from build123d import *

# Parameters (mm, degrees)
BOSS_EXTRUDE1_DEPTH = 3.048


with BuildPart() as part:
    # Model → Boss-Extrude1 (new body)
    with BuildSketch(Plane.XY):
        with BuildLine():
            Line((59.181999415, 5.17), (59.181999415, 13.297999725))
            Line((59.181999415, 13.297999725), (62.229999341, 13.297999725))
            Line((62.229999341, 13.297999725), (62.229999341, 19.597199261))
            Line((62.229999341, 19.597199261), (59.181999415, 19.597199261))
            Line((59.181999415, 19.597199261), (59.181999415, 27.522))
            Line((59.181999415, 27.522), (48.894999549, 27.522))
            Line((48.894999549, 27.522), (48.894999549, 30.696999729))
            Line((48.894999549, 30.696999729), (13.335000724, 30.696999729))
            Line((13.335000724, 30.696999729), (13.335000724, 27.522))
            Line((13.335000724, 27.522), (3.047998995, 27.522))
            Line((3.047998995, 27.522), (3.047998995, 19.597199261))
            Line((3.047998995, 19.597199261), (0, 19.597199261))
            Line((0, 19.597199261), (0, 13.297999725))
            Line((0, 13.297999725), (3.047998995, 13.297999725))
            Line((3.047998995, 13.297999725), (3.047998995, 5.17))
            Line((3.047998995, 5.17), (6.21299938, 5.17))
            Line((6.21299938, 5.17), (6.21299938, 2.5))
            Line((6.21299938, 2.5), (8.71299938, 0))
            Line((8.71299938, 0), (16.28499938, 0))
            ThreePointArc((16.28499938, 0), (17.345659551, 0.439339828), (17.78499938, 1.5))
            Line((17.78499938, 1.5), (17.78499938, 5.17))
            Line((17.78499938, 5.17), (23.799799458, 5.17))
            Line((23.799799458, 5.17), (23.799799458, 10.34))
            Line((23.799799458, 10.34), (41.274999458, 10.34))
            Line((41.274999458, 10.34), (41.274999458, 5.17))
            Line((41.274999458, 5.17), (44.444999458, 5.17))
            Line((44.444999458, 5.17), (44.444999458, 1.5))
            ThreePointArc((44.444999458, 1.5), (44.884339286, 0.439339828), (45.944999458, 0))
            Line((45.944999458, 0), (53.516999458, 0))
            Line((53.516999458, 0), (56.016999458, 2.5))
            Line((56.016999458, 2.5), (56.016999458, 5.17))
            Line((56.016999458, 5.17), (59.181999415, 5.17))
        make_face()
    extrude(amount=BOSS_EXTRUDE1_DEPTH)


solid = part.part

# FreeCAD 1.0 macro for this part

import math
import FreeCAD as App
import Part
import Sketcher

V = App.Vector
Q = App.Units.Quantity

doc = App.newDocument("Part")
body = doc.addObject("PartDesign::Body", "Body")

# Sketch on XY plane
sketch1 = doc.addObject("Sketcher::SketchObject", "Sketch")
body.addObject(sketch1)
sketch1.AttachmentSupport = (doc.XY_Plane, [""])
sketch1.MapMode = "FlatFace"
sketch1.addGeometry(Part.LineSegment(V(59.181999, 5.17, 0), V(59.181999, 13.298, 0)), False)
sketch1.addGeometry(Part.LineSegment(V(59.181999, 13.298, 0), V(62.229999, 13.298, 0)), False)
sketch1.addGeometry(Part.LineSegment(V(62.229999, 13.298, 0), V(62.229999, 19.597199, 0)), False)
sketch1.addGeometry(Part.LineSegment(V(62.229999, 19.597199, 0), V(59.181999, 19.597199, 0)), False)
sketch1.addGeometry(Part.LineSegment(V(59.181999, 19.597199, 0), V(59.181999, 27.522, 0)), False)
sketch1.addGeometry(Part.LineSegment(V(59.181999, 27.522, 0), V(48.895, 27.522, 0)), False)
sketch1.addGeometry(Part.LineSegment(V(48.895, 27.522, 0), V(48.895, 30.697, 0)), False)
sketch1.addGeometry(Part.LineSegment(V(48.895, 30.697, 0), V(13.335001, 30.697, 0)), False)
sketch1.addGeometry(Part.LineSegment(V(13.335001, 30.697, 0), V(13.335001, 27.522, 0)), False)
sketch1.addGeometry(Part.LineSegment(V(13.335001, 27.522, 0), V(3.047999, 27.522, 0)), False)
sketch1.addGeometry(Part.LineSegment(V(3.047999, 27.522, 0), V(3.047999, 19.597199, 0)), False)
sketch1.addGeometry(Part.LineSegment(V(3.047999, 19.597199, 0), V(0, 19.597199, 0)), False)
sketch1.addGeometry(Part.LineSegment(V(0, 19.597199, 0), V(0, 13.298, 0)), False)
sketch1.addGeometry(Part.LineSegment(V(0, 13.298, 0), V(3.047999, 13.298, 0)), False)
sketch1.addGeometry(Part.LineSegment(V(3.047999, 13.298, 0), V(3.047999, 5.17, 0)), False)
sketch1.addGeometry(Part.LineSegment(V(3.047999, 5.17, 0), V(6.212999, 5.17, 0)), False)
sketch1.addGeometry(Part.LineSegment(V(6.212999, 5.17, 0), V(6.212999, 2.5, 0)), False)
sketch1.addGeometry(Part.LineSegment(V(6.212999, 2.5, 0), V(8.712999, 0, 0)), False)
sketch1.addGeometry(Part.LineSegment(V(8.712999, 0, 0), V(16.284999, 0, 0)), False)
sketch1.addGeometry(Part.ArcOfCircle(Part.Circle(V(16.284999, 1.5, 0), V(0, 0, 1), 1.5), math.radians(-90), math.radians(0)), False)
sketch1.addGeometry(Part.LineSegment(V(17.784999, 1.5, 0), V(17.784999, 5.17, 0)), False)
sketch1.addGeometry(Part.LineSegment(V(17.784999, 5.17, 0), V(23.799799, 5.17, 0)), False)
sketch1.addGeometry(Part.LineSegment(V(23.799799, 5.17, 0), V(23.799799, 10.34, 0)), False)
sketch1.addGeometry(Part.LineSegment(V(23.799799, 10.34, 0), V(41.274999, 10.34, 0)), False)
sketch1.addGeometry(Part.LineSegment(V(41.274999, 10.34, 0), V(41.274999, 5.17, 0)), False)
sketch1.addGeometry(Part.LineSegment(V(41.274999, 5.17, 0), V(44.444999, 5.17, 0)), False)
sketch1.addGeometry(Part.LineSegment(V(44.444999, 5.17, 0), V(44.444999, 1.5, 0)), False)
sketch1.addGeometry(Part.ArcOfCircle(Part.Circle(V(45.944999, 1.5, 0), V(0, 0, 1), 1.5), math.radians(180), math.radians(270)), False)
sketch1.addGeometry(Part.LineSegment(V(45.944999, 0, 0), V(53.516999, 0, 0)), False)
sketch1.addGeometry(Part.LineSegment(V(53.516999, 0, 0), V(56.016999, 2.5, 0)), False)
sketch1.addGeometry(Part.LineSegment(V(56.016999, 2.5, 0), V(56.016999, 5.17, 0)), False)
sketch1.addGeometry(Part.LineSegment(V(56.016999, 5.17, 0), V(59.181999, 5.17, 0)), False)
sketch1.addConstraint(Sketcher.Constraint("Coincident", 0, 2, 1, 1))
sketch1.addConstraint(Sketcher.Constraint("Coincident", 1, 2, 2, 1))
sketch1.addConstraint(Sketcher.Constraint("Coincident", 2, 2, 3, 1))
sketch1.addConstraint(Sketcher.Constraint("Coincident", 3, 2, 4, 1))
sketch1.addConstraint(Sketcher.Constraint("Coincident", 4, 2, 5, 1))
sketch1.addConstraint(Sketcher.Constraint("Coincident", 5, 2, 6, 1))
sketch1.addConstraint(Sketcher.Constraint("Coincident", 6, 2, 7, 1))
sketch1.addConstraint(Sketcher.Constraint("Coincident", 7, 2, 8, 1))
sketch1.addConstraint(Sketcher.Constraint("Coincident", 8, 2, 9, 1))
sketch1.addConstraint(Sketcher.Constraint("Coincident", 9, 2, 10, 1))
sketch1.addConstraint(Sketcher.Constraint("Coincident", 10, 2, 11, 1))
sketch1.addConstraint(Sketcher.Constraint("Coincident", 11, 2, 12, 1))
sketch1.addConstraint(Sketcher.Constraint("Coincident", 12, 2, 13, 1))
sketch1.addConstraint(Sketcher.Constraint("Coincident", 13, 2, 14, 1))
sketch1.addConstraint(Sketcher.Constraint("Coincident", 14, 2, 15, 1))
sketch1.addConstraint(Sketcher.Constraint("Coincident", 15, 2, 16, 1))
sketch1.addConstraint(Sketcher.Constraint("Coincident", 16, 2, 17, 1))
sketch1.addConstraint(Sketcher.Constraint("Coincident", 17, 2, 18, 1))
sketch1.addConstraint(Sketcher.Constraint("Tangent", 18, 2, 19, 1))
sketch1.addConstraint(Sketcher.Constraint("Tangent", 19, 2, 20, 1))
sketch1.addConstraint(Sketcher.Constraint("Coincident", 20, 2, 21, 1))
sketch1.addConstraint(Sketcher.Constraint("Coincident", 21, 2, 22, 1))
sketch1.addConstraint(Sketcher.Constraint("Coincident", 22, 2, 23, 1))
sketch1.addConstraint(Sketcher.Constraint("Coincident", 23, 2, 24, 1))
sketch1.addConstraint(Sketcher.Constraint("Coincident", 24, 2, 25, 1))
sketch1.addConstraint(Sketcher.Constraint("Coincident", 25, 2, 26, 1))
sketch1.addConstraint(Sketcher.Constraint("Tangent", 26, 2, 27, 1))
sketch1.addConstraint(Sketcher.Constraint("Tangent", 27, 2, 28, 1))
sketch1.addConstraint(Sketcher.Constraint("Coincident", 28, 2, 29, 1))
sketch1.addConstraint(Sketcher.Constraint("Coincident", 29, 2, 30, 1))
sketch1.addConstraint(Sketcher.Constraint("Coincident", 30, 2, 31, 1))
sketch1.addConstraint(Sketcher.Constraint("Coincident", 31, 2, 0, 1))
sketch1.addConstraint(Sketcher.Constraint("Vertical", 0))
sketch1.addConstraint(Sketcher.Constraint("Horizontal", 1))
sketch1.addConstraint(Sketcher.Constraint("Vertical", 2))
sketch1.addConstraint(Sketcher.Constraint("Horizontal", 3))
sketch1.addConstraint(Sketcher.Constraint("Vertical", 4))
sketch1.addConstraint(Sketcher.Constraint("Horizontal", 5))
sketch1.addConstraint(Sketcher.Constraint("Vertical", 6))
sketch1.addConstraint(Sketcher.Constraint("Horizontal", 7))
sketch1.addConstraint(Sketcher.Constraint("Vertical", 8))
sketch1.addConstraint(Sketcher.Constraint("Horizontal", 9))
sketch1.addConstraint(Sketcher.Constraint("Vertical", 10))
sketch1.addConstraint(Sketcher.Constraint("Horizontal", 11))
sketch1.addConstraint(Sketcher.Constraint("Vertical", 12))
sketch1.addConstraint(Sketcher.Constraint("Horizontal", 13))
sketch1.addConstraint(Sketcher.Constraint("Vertical", 14))
sketch1.addConstraint(Sketcher.Constraint("Horizontal", 15))
sketch1.addConstraint(Sketcher.Constraint("Vertical", 16))
sketch1.addConstraint(Sketcher.Constraint("Horizontal", 18))
sketch1.addConstraint(Sketcher.Constraint("Vertical", 20))
sketch1.addConstraint(Sketcher.Constraint("Horizontal", 21))
sketch1.addConstraint(Sketcher.Constraint("Vertical", 22))
sketch1.addConstraint(Sketcher.Constraint("Horizontal", 23))
sketch1.addConstraint(Sketcher.Constraint("Vertical", 24))
sketch1.addConstraint(Sketcher.Constraint("Horizontal", 25))
sketch1.addConstraint(Sketcher.Constraint("Vertical", 26))
sketch1.addConstraint(Sketcher.Constraint("Horizontal", 28))
sketch1.addConstraint(Sketcher.Constraint("Vertical", 30))
sketch1.addConstraint(Sketcher.Constraint("Horizontal", 31))
sketch1.addConstraint(Sketcher.Constraint("Equal", 19, 27))
sketch1.addConstraint(Sketcher.Constraint("PointOnObject", 11, 2, -2))
sketch1.addConstraint(Sketcher.Constraint("PointOnObject", 17, 2, -1))
sketch1.addConstraint(Sketcher.Constraint("PointOnObject", 27, 2, -1))
sketch1.addConstraint(Sketcher.Constraint("Perpendicular", 17, 29))
sketch1.addConstraint(Sketcher.Constraint("Horizontal", 5, 2, 8, 2))
sketch1.addConstraint(Sketcher.Constraint("Horizontal", 3, 2, 10, 2))
sketch1.addConstraint(Sketcher.Constraint("Horizontal", 1, 2, 12, 2))
sketch1.addConstraint(Sketcher.Constraint("Horizontal", 15, 2, 20, 2))
sketch1.addConstraint(Sketcher.Constraint("Horizontal", 21, 2, 24, 2))
sketch1.addConstraint(Sketcher.Constraint("Horizontal", 16, 2, 29, 2))
sketch1.addConstraint(Sketcher.Constraint("Horizontal", 25, 2, 30, 2))
sketch1.addConstraint(Sketcher.Constraint("Vertical", 0, 2, 3, 2))
sketch1.addConstraint(Sketcher.Constraint("Vertical", 10, 2, 13, 2))
sketch1.addConstraint(Sketcher.Constraint("Equal", 5, 9))
sketch1.addConstraint(Sketcher.Constraint("Equal", 3, 11))
sketch1.addConstraint(Sketcher.Constraint("Equal", 18, 28))
sketch1.addConstraint(Sketcher.Constraint("Equal", 15, 31))
sketch1.addConstraint(Sketcher.Constraint("Equal", 17, 29))
sketch1.addConstraint(Sketcher.Constraint("DistanceX", 7, 2, 7, 1, Q("1.4 in")))
sketch1.addConstraint(Sketcher.Constraint("DistanceX", 1, 1, 1, 2, Q("0.12 in")))
sketch1.addConstraint(Sketcher.Constraint("DistanceY", 0, 1, 0, 2, Q("0.32 in")))
sketch1.addConstraint(Sketcher.Constraint("DistanceX", 23, 2, 5, 2, Q("0.3 in")))
sketch1.addConstraint(Sketcher.Constraint("DistanceX", 5, 2, 5, 1, Q("0.405 in")))
sketch1.addConstraint(Sketcher.Constraint("DistanceX", 23, 1, 23, 2, Q("0.688 in")))
sketch1.addConstraint(Sketcher.Constraint("DistanceY", 2, 1, 2, 2, Q("0.248 in")))
sketch1.addConstraint(Sketcher.Constraint("DistanceY", 4, 1, 4, 2, Q("0.312 in")))
sketch1.addConstraint(Sketcher.Constraint("DistanceY", 6, 1, 6, 2, Q("0.125 in")))
sketch1.addConstraint(Sketcher.Constraint("Radius", 19, 1.5))
sketch1.addConstraint(Sketcher.Constraint("DistanceX", 15, 1, 15, 2, 3.165))
sketch1.addConstraint(Sketcher.Constraint("DistanceX", 18, 1, 18, 2, 7.572))
sketch1.addConstraint(Sketcher.Constraint("DistanceX", 21, 1, 21, 2, 6.0148))
sketch1.addConstraint(Sketcher.Constraint("DistanceY", 16, 2, 16, 1, 2.67))
sketch1.addConstraint(Sketcher.Constraint("DistanceY", 22, 1, 22, 2, 5.17))
pad1 = doc.addObject("PartDesign::Pad", "Pad")
body.addObject(pad1)
pad1.Profile = sketch1
pad1.Length = Q("0.12 in")

doc.recompute()
